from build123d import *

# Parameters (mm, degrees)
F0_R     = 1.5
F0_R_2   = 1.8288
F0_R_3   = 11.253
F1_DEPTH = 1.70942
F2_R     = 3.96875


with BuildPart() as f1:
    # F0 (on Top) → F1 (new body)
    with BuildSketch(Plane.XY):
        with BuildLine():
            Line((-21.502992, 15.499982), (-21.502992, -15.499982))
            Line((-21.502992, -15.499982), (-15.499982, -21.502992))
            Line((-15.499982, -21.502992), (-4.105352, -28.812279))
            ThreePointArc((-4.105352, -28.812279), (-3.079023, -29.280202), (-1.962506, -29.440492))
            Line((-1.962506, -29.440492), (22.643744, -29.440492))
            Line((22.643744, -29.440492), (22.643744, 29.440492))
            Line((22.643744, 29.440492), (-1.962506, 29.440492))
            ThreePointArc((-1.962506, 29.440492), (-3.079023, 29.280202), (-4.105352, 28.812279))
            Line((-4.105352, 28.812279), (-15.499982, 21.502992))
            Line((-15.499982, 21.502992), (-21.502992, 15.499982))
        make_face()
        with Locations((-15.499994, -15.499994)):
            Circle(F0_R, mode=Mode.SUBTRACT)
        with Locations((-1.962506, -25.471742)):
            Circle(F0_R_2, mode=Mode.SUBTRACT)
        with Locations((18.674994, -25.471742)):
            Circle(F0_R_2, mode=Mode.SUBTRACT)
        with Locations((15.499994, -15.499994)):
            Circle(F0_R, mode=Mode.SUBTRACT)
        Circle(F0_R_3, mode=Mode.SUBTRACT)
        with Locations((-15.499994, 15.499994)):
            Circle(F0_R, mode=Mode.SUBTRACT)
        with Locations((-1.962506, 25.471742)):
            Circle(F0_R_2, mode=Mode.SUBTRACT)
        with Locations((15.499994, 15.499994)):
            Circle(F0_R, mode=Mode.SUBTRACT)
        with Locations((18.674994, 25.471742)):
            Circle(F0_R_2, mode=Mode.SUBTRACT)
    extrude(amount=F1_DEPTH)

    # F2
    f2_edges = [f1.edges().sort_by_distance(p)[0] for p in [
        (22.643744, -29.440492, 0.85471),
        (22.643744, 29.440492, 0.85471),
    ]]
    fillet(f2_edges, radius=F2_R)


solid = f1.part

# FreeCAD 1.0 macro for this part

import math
import FreeCAD as App
import Part
import Sketcher
Q = App.Units.Quantity


def edges_at(feature, points):
    """Names of the edges that pass closest to the given points."""
    edges = feature.Shape.Edges
    near = lambda p: min(range(len(edges)), key=lambda i: edges[i].distToShape(Part.Vertex(*p))[0])
    return sorted({f"Edge{near(p) + 1}" for p in points})

doc = App.newDocument("Part")
params = doc.addObject("Spreadsheet::Sheet", "Params")
for row, (alias, value) in enumerate([
    ("sketch1_diameter", "0.144 in"),
    ("sketch1_diameter2", "0.144 in"),
    ("sketch1_diameter3", "0.144 in"),
    ("sketch1_diameter4", "0.144 in"),
    ("sketch1_radius", "0.1562498 in"),
    ("pad1_length", "0.0673 in"),
    ("fillet_radius", "0.15625 in"),
], start=1):
    params.set(f"A{row}", alias)
    params.set(f"B{row}", "=" + value)
    params.setAlias(f"B{row}", alias)

body = doc.addObject("PartDesign::Body", "Body")

sketch1 = doc.addObject("Sketcher::SketchObject", "Sketch")
body.addObject(sketch1)
sketch1.AttachmentSupport = (doc.XY_Plane, [""])
sketch1.MapMode = "FlatFace"
sketch1.addGeometry([
    Part.LineSegment(App.Vector(-21.502992, 15.499982, 0), App.Vector(-21.502992, -15.499982, 0)),
    Part.LineSegment(App.Vector(-21.502992, -15.499982, 0), App.Vector(-15.499982, -21.502992, 0)),
    Part.LineSegment(App.Vector(-15.499982, -21.502992, 0), App.Vector(-4.105352, -28.812279, 0)),
    Part.ArcOfCircle(Part.Circle(App.Vector(-1.962507, -25.471746, 0), App.Vector(0, 0, 1), 3.968746), math.radians(-122.67887), math.radians(-89.999984)),
    Part.LineSegment(App.Vector(-1.962506, -29.440492, 0), App.Vector(22.643744, -29.440492, 0)),
    Part.LineSegment(App.Vector(22.643744, -29.440492, 0), App.Vector(22.643744, 29.440492, 0)),
    Part.LineSegment(App.Vector(22.643744, 29.440492, 0), App.Vector(-1.962506, 29.440492, 0)),
    Part.ArcOfCircle(Part.Circle(App.Vector(-1.962507, 25.471746, 0), App.Vector(0, 0, 1), 3.968746), math.radians(89.999984), math.radians(122.67887)),
    Part.LineSegment(App.Vector(-4.105352, 28.812279, 0), App.Vector(-15.499982, 21.502992, 0)),
    Part.LineSegment(App.Vector(-15.499982, 21.502992, 0), App.Vector(-21.502992, 15.499982, 0)),
    Part.Circle(App.Vector(-15.499994, -15.499994, 0), App.Vector(0, 0, 1), 1.5),
    Part.Circle(App.Vector(-1.962506, -25.471742, 0), App.Vector(0, 0, 1), 1.8288),
    Part.Circle(App.Vector(0, 0, 0), App.Vector(0, 0, 1), 11.253),
    Part.Circle(App.Vector(18.674994, -25.471742, 0), App.Vector(0, 0, 1), 1.8288),
    Part.Circle(App.Vector(15.499994, -15.499994, 0), App.Vector(0, 0, 1), 1.5),
    Part.Circle(App.Vector(-15.499994, 15.499994, 0), App.Vector(0, 0, 1), 1.5),
    Part.Circle(App.Vector(-1.962506, 25.471742, 0), App.Vector(0, 0, 1), 1.8288),
    Part.Circle(App.Vector(15.499994, 15.499994, 0), App.Vector(0, 0, 1), 1.5),
    Part.Circle(App.Vector(18.674994, 25.471742, 0), App.Vector(0, 0, 1), 1.8288),
], False)
sketch1.addConstraint([
    Sketcher.Constraint("Coincident", 0, 2, 1, 1),
    Sketcher.Constraint("Coincident", 1, 2, 2, 1),
    Sketcher.Constraint("Coincident", 2, 2, 3, 1),
    Sketcher.Constraint("Coincident", 3, 2, 4, 1),
    Sketcher.Constraint("Coincident", 4, 2, 5, 1),
    Sketcher.Constraint("Coincident", 5, 2, 6, 1),
    Sketcher.Constraint("Coincident", 6, 2, 7, 1),
    Sketcher.Constraint("Coincident", 7, 2, 8, 1),
    Sketcher.Constraint("Coincident", 8, 2, 9, 1),
    Sketcher.Constraint("Coincident", 9, 2, 0, 1),
    Sketcher.Constraint("Vertical", 0),
    Sketcher.Constraint("Horizontal", 4),
    Sketcher.Constraint("Vertical", 5),
    Sketcher.Constraint("Horizontal", 6),
    Sketcher.Constraint("Coincident", 12, 3, -1, 1),
    Sketcher.Constraint("Coincident", 11, 3, 3, 3),
    Sketcher.Constraint("Coincident", 16, 3, 7, 3),
    Sketcher.Constraint("Diameter", 11, Q("0.144 in")),
    Sketcher.Constraint("Diameter", 13, Q("0.144 in")),
    Sketcher.Constraint("Diameter", 16, Q("0.144 in")),
    Sketcher.Constraint("Diameter", 18, Q("0.144 in")),
    Sketcher.Constraint("Radius", 3, Q("0.1562498 in")),
    Sketcher.Constraint("Radius", 7, Q("0.1562498 in")),
    Sketcher.Constraint("Diameter", 10, Q("3 mm")),
    Sketcher.Constraint("Diameter", 12, Q("22.506 mm")),
    Sketcher.Constraint("Diameter", 14, Q("3 mm")),
    Sketcher.Constraint("Diameter", 15, Q("3 mm")),
    Sketcher.Constraint("Diameter", 17, Q("3 mm")),
    Sketcher.Constraint("DistanceX", 4, 1, 4, 2, Q("0.96875 in")),
    Sketcher.Constraint("DistanceX", 6, 2, 6, 1, Q("0.96875 in")),
    Sketcher.Constraint("DistanceX", 11, 3, 13, 3, Q("0.8125 in")),
    Sketcher.Constraint("DistanceX", 7, 3, 13, 3, Q("0.8125 in")),
    Sketcher.Constraint("DistanceX", 14, 3, 13, 3, Q("0.125 in")),
    Sketcher.Constraint("DistanceX", 16, 3, 17, 3, Q("0.6875 in")),
    Sketcher.Constraint("DistanceX", 17, 3, 18, 3, Q("0.125 in")),
    Sketcher.Constraint("DistanceY", 11, 3, 1, 2, Q("0.15625 in")),
    Sketcher.Constraint("DistanceX", 13, 3, 4, 2, Q("0.15625 in")),
    Sketcher.Constraint("DistanceY", 4, 2, 13, 3, Q("0.15625 in")),
    Sketcher.Constraint("DistanceY", 18, 3, 5, 2, Q("0.15625 in")),
    Sketcher.Constraint("DistanceY", 8, 2, 16, 3, Q("0.15625 in")),
    Sketcher.Constraint("Distance", 1, Q("8.489538 mm")),
    Sketcher.Constraint("Distance", 9, Q("8.489538 mm")),
    Sketcher.Constraint("DistanceY", 0, 2, 0, 1, Q("30.999964 mm")),
    Sketcher.Constraint("DistanceY", 5, 1, 5, 2, Q("58.880984 mm")),
    Sketcher.Constraint("DistanceY", 11, 3, -1, 1, Q("25.471742 mm")),
    Sketcher.Constraint("DistanceX", 0, 2, -1, 1, Q("21.502992 mm")),
    Sketcher.Constraint("DistanceY", 0, 2, -1, 1, Q("15.499982 mm")),
    Sketcher.Constraint("DistanceY", 2, 2, -1, 1, Q("28.812279 mm")),
    Sketcher.Constraint("DistanceX", 7, 2, -1, 1, Q("4.105352 mm")),
    Sketcher.Constraint("DistanceY", -1, 1, 7, 2, Q("28.812279 mm")),
    Sketcher.Constraint("DistanceY", 3, 3, 10, 3, Q("9.971752 mm")),
    Sketcher.Constraint("DistanceY", 3, 3, 14, 3, Q("9.971752 mm")),
    Sketcher.Constraint("DistanceY", 15, 3, 7, 3, Q("9.971752 mm")),
    Sketcher.Constraint("DistanceY", 17, 3, 7, 3, Q("9.971752 mm")),
    Sketcher.Constraint("DistanceX", 10, 3, 2, 2, Q("11.394642 mm")),
    Sketcher.Constraint("DistanceX", 15, 3, -1, 1, Q("15.499994 mm")),
])
sketch1.setExpression("Constraints[17]", "Params.sketch1_diameter")
sketch1.setExpression("Constraints[18]", "Params.sketch1_diameter2")
sketch1.setExpression("Constraints[19]", "Params.sketch1_diameter3")
sketch1.setExpression("Constraints[20]", "Params.sketch1_diameter4")
sketch1.setExpression("Constraints[21]", "Params.sketch1_radius")
pad1 = doc.addObject("PartDesign::Pad", "Pad")
body.addObject(pad1)
pad1.Profile = sketch1
pad1.setExpression("Length", "Params.pad1_length")
doc.recompute()

fillet = doc.addObject("PartDesign::Fillet", "Fillet")
body.addObject(fillet)
fillet.Base = (pad1, edges_at(pad1, [(22.644, -29.44, 0.855), (22.644, 29.44, 0.855)]))
fillet.setExpression("Radius", "Params.fillet_radius")

doc.recompute()
